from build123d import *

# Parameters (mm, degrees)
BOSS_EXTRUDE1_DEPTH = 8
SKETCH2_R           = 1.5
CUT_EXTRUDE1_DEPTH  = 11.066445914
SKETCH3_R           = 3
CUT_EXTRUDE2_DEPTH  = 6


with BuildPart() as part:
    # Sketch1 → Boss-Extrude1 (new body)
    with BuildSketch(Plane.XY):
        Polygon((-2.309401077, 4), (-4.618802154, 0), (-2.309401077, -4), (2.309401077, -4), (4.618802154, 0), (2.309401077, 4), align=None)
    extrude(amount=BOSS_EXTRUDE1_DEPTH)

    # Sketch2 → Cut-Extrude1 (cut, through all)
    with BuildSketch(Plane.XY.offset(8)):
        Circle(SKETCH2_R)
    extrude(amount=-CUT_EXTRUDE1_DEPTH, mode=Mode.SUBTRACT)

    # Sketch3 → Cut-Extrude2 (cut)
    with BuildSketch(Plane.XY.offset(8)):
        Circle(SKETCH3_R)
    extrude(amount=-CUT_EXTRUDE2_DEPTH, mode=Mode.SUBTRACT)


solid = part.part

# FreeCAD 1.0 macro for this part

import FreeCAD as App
import Part
import Sketcher
Q = App.Units.Quantity

doc = App.newDocument("Part")
body = doc.addObject("PartDesign::Body", "Body")

# Sketch on XY plane
sketch1 = body.newObject("Sketcher::SketchObject", "Sketch")
sketch1.AttachmentSupport = (doc.getObject("XY_Plane"), [""])
sketch1.MapMode = "FlatFace"
sketch1.addGeometry([
    Part.LineSegment(App.Vector(-2.3, 4, 0), App.Vector(-4.6, 0, 0)),  # 0
    Part.LineSegment(App.Vector(-4.6, 0, 0), App.Vector(-2.3, -4, 0)),  # 1
    Part.LineSegment(App.Vector(-2.3, -4, 0), App.Vector(2.3, -4, 0)),  # 2
    Part.LineSegment(App.Vector(2.3, -4, 0), App.Vector(4.6, 0, 0)),  # 3
    Part.LineSegment(App.Vector(4.6, 0, 0), App.Vector(2.3, 4, 0)),  # 4
    Part.LineSegment(App.Vector(2.3, 4, 0), App.Vector(-2.3, 4, 0)),  # 5
], False)
sketch1.addConstraint([
    Sketcher.Constraint("Coincident", 0, 2, 1, 1),
    Sketcher.Constraint("Coincident", 1, 2, 2, 1),
    Sketcher.Constraint("Coincident", 2, 2, 3, 1),
    Sketcher.Constraint("Coincident", 3, 2, 4, 1),
    Sketcher.Constraint("Coincident", 4, 2, 5, 1),
    Sketcher.Constraint("Coincident", 5, 2, 0, 1),
    Sketcher.Constraint("Horizontal", 2),
    Sketcher.Constraint("Horizontal", 5),
    Sketcher.Constraint("Symmetric", 0, 2, 3, 2, -1, 1),
    Sketcher.Constraint("Symmetric", 1, 2, 4, 2, -1, 1),
    Sketcher.Constraint("PointOnObject", 0, 2, -1),
    Sketcher.Constraint("Parallel", 0, 3),
    Sketcher.Constraint("Vertical", 2, 2, 4, 2),
    Sketcher.Constraint("Angle", 0, Q("-120 deg")),
    Sketcher.Constraint("DistanceY", 1, 2, -1, 1, Q("4 mm")),
    Sketcher.Constraint("DistanceX", 1, 2, -1, 1, Q("2.309401 mm")),
])
pad1 = body.newObject("PartDesign::Pad", "Pad")
pad1.Profile = sketch1
pad1.Length = 8

# Sketch on XY plane
sketch2 = body.newObject("Sketcher::SketchObject", "Sketch001")
sketch2.AttachmentSupport = (doc.getObject("XY_Plane"), [""])
sketch2.MapMode = "FlatFace"
sketch2.AttachmentOffset = App.Placement(App.Vector(0, 0, 8), App.Rotation())
sketch2.addGeometry(Part.Circle(App.Vector(0, 0, 0), App.Vector(0, 0, 1), 1.5), False)
sketch2.addConstraint([
    Sketcher.Constraint("Coincident", 0, 3, -1, 1),
    Sketcher.Constraint("Diameter", 0, Q("3 mm")),
])
pocket1 = body.newObject("PartDesign::Pocket", "Pocket")
pocket1.Profile = sketch2
pocket1.Type = "ThroughAll"

# Sketch on XY plane
sketch3 = body.newObject("Sketcher::SketchObject", "Sketch002")
sketch3.AttachmentSupport = (doc.getObject("XY_Plane"), [""])
sketch3.MapMode = "FlatFace"
sketch3.AttachmentOffset = App.Placement(App.Vector(0, 0, 8), App.Rotation())
sketch3.addGeometry(Part.Circle(App.Vector(0, 0, 0), App.Vector(0, 0, 1), 3), False)
sketch3.addConstraint([
    Sketcher.Constraint("Coincident", 0, 3, -1, 1),
    Sketcher.Constraint("Diameter", 0, Q("6 mm")),
])
pocket2 = body.newObject("PartDesign::Pocket", "Pocket001")
pocket2.Profile = sketch3
pocket2.Length = 6

doc.recompute()
